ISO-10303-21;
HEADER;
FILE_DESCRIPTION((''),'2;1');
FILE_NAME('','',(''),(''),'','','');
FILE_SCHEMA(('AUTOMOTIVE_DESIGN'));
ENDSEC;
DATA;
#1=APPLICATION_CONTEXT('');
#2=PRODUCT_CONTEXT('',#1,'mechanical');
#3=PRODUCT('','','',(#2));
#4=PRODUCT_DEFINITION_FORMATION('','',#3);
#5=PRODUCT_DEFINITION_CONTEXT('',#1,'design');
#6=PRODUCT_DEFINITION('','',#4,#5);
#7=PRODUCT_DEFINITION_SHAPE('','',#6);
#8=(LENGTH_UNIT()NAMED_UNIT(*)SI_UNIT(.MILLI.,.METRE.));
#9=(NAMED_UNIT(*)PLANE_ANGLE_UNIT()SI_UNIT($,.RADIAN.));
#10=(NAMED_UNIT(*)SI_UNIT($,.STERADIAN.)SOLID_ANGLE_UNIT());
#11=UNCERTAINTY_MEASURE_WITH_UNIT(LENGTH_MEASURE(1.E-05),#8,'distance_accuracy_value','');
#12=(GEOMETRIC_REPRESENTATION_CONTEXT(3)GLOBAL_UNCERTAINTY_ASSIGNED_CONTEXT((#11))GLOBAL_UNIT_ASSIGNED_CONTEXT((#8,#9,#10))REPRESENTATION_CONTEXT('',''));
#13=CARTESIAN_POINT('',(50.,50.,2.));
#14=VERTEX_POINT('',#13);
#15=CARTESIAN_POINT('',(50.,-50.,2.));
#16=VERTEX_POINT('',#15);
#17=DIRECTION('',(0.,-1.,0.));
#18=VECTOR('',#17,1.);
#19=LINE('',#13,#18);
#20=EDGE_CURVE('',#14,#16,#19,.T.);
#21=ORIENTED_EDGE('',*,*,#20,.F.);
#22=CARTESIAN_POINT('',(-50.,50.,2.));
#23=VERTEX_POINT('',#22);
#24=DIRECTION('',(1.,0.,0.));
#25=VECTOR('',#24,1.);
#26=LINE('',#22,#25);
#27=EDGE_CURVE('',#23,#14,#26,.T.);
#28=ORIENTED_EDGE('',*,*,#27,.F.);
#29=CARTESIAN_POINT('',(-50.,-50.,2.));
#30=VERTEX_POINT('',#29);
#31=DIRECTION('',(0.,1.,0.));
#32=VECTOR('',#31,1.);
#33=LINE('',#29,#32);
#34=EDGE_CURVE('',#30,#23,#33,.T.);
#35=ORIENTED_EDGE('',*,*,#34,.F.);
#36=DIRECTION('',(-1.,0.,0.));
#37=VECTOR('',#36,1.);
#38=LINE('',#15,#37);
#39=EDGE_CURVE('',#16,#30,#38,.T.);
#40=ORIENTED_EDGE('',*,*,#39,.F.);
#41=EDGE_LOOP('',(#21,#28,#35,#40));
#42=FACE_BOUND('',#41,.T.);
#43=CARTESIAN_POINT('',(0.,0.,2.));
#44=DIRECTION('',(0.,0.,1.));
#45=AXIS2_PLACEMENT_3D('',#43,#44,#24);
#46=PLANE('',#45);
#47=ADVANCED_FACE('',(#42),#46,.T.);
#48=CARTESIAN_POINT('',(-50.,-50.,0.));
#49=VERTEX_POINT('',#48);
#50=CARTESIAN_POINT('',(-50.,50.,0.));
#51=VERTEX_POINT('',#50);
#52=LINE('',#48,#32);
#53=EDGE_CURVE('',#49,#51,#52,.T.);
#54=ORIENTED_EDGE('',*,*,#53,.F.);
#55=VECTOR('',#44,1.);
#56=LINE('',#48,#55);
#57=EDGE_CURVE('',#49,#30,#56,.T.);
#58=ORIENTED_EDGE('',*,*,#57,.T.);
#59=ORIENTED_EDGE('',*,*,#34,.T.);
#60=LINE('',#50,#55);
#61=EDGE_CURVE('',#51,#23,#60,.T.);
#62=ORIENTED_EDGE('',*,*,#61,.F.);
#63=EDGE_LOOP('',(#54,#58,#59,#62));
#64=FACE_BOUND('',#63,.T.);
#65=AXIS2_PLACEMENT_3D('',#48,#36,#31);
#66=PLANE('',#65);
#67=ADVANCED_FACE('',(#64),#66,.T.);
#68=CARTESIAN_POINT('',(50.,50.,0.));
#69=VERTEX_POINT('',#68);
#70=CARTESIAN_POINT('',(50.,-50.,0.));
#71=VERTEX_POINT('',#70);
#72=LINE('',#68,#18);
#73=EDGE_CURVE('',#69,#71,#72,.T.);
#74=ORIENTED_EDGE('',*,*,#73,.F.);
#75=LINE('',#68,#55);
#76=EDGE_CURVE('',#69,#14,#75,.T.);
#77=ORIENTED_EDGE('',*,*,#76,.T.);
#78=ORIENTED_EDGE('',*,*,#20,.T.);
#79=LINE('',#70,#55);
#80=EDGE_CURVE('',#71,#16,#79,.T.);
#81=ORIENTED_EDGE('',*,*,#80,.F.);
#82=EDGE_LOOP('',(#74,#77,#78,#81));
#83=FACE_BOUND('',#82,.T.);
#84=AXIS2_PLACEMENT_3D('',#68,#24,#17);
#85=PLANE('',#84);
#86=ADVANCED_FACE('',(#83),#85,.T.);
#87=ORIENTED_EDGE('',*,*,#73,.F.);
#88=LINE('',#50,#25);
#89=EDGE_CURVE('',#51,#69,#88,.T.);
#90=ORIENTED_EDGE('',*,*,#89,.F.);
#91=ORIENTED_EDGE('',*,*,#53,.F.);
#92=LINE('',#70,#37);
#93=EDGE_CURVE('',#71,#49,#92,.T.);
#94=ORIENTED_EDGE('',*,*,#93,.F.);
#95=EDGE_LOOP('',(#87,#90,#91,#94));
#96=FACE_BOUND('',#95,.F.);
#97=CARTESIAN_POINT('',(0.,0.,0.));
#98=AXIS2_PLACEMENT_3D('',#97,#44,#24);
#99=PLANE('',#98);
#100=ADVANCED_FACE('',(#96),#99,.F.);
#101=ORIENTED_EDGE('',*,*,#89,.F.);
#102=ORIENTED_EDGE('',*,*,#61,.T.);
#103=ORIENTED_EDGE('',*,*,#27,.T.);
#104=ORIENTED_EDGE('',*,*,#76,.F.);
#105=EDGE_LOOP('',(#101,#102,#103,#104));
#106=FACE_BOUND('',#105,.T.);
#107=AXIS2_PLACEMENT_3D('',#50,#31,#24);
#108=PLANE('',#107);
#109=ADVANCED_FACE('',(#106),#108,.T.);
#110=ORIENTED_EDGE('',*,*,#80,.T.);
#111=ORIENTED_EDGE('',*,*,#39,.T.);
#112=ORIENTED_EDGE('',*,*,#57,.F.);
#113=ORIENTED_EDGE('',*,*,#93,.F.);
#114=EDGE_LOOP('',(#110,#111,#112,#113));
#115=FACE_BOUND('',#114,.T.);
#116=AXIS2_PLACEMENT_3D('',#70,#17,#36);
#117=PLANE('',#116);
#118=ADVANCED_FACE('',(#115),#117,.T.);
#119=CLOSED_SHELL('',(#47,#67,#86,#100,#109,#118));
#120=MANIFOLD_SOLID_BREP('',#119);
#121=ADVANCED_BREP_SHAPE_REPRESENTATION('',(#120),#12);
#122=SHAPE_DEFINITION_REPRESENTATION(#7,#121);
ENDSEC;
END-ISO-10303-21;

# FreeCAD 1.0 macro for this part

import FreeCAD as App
import Part
import Sketcher
from FreeCAD import Vector
Q = App.Units.Quantity

doc = App.newDocument("Part")
body = doc.addObject("PartDesign::Body", "Body")

sketch1 = body.newObject("Sketcher::SketchObject", "Sketch")
sketch1.AttachmentSupport = (doc.getObject("XY_Plane"), [""])
sketch1.MapMode = "FlatFace"
sketch1.addGeometry(Part.LineSegment(Vector(50, 50, 0), Vector(-50, 50, 0)), False)
sketch1.addGeometry(Part.LineSegment(Vector(-50, 50, 0), Vector(-50, -50, 0)), False)
sketch1.addGeometry(Part.LineSegment(Vector(-50, -50, 0), Vector(50, -50, 0)), False)
sketch1.addGeometry(Part.LineSegment(Vector(50, -50, 0), Vector(50, 50, 0)), False)
sketch1.addConstraint(Sketcher.Constraint("Coincident", 0, 2, 1, 1))
sketch1.addConstraint(Sketcher.Constraint("Coincident", 1, 2, 2, 1))
sketch1.addConstraint(Sketcher.Constraint("Coincident", 2, 2, 3, 1))
sketch1.addConstraint(Sketcher.Constraint("Coincident", 3, 2, 0, 1))
sketch1.addConstraint(Sketcher.Constraint("Horizontal", 0))
sketch1.addConstraint(Sketcher.Constraint("Vertical", 1))
sketch1.addConstraint(Sketcher.Constraint("Horizontal", 2))
sketch1.addConstraint(Sketcher.Constraint("Vertical", 3))
sketch1.addConstraint(Sketcher.Constraint("Symmetric", 0, 2, 2, 2, -1, 1))
sketch1.addConstraint(Sketcher.Constraint("Equal", 2, 1))
sketch1.addConstraint(Sketcher.Constraint("DistanceX", 0, 2, 0, 1, Q("100 mm")))
pad1 = body.newObject("PartDesign::Pad", "Pad")
pad1.Profile = sketch1
pad1.Length = 2

doc.recompute()
